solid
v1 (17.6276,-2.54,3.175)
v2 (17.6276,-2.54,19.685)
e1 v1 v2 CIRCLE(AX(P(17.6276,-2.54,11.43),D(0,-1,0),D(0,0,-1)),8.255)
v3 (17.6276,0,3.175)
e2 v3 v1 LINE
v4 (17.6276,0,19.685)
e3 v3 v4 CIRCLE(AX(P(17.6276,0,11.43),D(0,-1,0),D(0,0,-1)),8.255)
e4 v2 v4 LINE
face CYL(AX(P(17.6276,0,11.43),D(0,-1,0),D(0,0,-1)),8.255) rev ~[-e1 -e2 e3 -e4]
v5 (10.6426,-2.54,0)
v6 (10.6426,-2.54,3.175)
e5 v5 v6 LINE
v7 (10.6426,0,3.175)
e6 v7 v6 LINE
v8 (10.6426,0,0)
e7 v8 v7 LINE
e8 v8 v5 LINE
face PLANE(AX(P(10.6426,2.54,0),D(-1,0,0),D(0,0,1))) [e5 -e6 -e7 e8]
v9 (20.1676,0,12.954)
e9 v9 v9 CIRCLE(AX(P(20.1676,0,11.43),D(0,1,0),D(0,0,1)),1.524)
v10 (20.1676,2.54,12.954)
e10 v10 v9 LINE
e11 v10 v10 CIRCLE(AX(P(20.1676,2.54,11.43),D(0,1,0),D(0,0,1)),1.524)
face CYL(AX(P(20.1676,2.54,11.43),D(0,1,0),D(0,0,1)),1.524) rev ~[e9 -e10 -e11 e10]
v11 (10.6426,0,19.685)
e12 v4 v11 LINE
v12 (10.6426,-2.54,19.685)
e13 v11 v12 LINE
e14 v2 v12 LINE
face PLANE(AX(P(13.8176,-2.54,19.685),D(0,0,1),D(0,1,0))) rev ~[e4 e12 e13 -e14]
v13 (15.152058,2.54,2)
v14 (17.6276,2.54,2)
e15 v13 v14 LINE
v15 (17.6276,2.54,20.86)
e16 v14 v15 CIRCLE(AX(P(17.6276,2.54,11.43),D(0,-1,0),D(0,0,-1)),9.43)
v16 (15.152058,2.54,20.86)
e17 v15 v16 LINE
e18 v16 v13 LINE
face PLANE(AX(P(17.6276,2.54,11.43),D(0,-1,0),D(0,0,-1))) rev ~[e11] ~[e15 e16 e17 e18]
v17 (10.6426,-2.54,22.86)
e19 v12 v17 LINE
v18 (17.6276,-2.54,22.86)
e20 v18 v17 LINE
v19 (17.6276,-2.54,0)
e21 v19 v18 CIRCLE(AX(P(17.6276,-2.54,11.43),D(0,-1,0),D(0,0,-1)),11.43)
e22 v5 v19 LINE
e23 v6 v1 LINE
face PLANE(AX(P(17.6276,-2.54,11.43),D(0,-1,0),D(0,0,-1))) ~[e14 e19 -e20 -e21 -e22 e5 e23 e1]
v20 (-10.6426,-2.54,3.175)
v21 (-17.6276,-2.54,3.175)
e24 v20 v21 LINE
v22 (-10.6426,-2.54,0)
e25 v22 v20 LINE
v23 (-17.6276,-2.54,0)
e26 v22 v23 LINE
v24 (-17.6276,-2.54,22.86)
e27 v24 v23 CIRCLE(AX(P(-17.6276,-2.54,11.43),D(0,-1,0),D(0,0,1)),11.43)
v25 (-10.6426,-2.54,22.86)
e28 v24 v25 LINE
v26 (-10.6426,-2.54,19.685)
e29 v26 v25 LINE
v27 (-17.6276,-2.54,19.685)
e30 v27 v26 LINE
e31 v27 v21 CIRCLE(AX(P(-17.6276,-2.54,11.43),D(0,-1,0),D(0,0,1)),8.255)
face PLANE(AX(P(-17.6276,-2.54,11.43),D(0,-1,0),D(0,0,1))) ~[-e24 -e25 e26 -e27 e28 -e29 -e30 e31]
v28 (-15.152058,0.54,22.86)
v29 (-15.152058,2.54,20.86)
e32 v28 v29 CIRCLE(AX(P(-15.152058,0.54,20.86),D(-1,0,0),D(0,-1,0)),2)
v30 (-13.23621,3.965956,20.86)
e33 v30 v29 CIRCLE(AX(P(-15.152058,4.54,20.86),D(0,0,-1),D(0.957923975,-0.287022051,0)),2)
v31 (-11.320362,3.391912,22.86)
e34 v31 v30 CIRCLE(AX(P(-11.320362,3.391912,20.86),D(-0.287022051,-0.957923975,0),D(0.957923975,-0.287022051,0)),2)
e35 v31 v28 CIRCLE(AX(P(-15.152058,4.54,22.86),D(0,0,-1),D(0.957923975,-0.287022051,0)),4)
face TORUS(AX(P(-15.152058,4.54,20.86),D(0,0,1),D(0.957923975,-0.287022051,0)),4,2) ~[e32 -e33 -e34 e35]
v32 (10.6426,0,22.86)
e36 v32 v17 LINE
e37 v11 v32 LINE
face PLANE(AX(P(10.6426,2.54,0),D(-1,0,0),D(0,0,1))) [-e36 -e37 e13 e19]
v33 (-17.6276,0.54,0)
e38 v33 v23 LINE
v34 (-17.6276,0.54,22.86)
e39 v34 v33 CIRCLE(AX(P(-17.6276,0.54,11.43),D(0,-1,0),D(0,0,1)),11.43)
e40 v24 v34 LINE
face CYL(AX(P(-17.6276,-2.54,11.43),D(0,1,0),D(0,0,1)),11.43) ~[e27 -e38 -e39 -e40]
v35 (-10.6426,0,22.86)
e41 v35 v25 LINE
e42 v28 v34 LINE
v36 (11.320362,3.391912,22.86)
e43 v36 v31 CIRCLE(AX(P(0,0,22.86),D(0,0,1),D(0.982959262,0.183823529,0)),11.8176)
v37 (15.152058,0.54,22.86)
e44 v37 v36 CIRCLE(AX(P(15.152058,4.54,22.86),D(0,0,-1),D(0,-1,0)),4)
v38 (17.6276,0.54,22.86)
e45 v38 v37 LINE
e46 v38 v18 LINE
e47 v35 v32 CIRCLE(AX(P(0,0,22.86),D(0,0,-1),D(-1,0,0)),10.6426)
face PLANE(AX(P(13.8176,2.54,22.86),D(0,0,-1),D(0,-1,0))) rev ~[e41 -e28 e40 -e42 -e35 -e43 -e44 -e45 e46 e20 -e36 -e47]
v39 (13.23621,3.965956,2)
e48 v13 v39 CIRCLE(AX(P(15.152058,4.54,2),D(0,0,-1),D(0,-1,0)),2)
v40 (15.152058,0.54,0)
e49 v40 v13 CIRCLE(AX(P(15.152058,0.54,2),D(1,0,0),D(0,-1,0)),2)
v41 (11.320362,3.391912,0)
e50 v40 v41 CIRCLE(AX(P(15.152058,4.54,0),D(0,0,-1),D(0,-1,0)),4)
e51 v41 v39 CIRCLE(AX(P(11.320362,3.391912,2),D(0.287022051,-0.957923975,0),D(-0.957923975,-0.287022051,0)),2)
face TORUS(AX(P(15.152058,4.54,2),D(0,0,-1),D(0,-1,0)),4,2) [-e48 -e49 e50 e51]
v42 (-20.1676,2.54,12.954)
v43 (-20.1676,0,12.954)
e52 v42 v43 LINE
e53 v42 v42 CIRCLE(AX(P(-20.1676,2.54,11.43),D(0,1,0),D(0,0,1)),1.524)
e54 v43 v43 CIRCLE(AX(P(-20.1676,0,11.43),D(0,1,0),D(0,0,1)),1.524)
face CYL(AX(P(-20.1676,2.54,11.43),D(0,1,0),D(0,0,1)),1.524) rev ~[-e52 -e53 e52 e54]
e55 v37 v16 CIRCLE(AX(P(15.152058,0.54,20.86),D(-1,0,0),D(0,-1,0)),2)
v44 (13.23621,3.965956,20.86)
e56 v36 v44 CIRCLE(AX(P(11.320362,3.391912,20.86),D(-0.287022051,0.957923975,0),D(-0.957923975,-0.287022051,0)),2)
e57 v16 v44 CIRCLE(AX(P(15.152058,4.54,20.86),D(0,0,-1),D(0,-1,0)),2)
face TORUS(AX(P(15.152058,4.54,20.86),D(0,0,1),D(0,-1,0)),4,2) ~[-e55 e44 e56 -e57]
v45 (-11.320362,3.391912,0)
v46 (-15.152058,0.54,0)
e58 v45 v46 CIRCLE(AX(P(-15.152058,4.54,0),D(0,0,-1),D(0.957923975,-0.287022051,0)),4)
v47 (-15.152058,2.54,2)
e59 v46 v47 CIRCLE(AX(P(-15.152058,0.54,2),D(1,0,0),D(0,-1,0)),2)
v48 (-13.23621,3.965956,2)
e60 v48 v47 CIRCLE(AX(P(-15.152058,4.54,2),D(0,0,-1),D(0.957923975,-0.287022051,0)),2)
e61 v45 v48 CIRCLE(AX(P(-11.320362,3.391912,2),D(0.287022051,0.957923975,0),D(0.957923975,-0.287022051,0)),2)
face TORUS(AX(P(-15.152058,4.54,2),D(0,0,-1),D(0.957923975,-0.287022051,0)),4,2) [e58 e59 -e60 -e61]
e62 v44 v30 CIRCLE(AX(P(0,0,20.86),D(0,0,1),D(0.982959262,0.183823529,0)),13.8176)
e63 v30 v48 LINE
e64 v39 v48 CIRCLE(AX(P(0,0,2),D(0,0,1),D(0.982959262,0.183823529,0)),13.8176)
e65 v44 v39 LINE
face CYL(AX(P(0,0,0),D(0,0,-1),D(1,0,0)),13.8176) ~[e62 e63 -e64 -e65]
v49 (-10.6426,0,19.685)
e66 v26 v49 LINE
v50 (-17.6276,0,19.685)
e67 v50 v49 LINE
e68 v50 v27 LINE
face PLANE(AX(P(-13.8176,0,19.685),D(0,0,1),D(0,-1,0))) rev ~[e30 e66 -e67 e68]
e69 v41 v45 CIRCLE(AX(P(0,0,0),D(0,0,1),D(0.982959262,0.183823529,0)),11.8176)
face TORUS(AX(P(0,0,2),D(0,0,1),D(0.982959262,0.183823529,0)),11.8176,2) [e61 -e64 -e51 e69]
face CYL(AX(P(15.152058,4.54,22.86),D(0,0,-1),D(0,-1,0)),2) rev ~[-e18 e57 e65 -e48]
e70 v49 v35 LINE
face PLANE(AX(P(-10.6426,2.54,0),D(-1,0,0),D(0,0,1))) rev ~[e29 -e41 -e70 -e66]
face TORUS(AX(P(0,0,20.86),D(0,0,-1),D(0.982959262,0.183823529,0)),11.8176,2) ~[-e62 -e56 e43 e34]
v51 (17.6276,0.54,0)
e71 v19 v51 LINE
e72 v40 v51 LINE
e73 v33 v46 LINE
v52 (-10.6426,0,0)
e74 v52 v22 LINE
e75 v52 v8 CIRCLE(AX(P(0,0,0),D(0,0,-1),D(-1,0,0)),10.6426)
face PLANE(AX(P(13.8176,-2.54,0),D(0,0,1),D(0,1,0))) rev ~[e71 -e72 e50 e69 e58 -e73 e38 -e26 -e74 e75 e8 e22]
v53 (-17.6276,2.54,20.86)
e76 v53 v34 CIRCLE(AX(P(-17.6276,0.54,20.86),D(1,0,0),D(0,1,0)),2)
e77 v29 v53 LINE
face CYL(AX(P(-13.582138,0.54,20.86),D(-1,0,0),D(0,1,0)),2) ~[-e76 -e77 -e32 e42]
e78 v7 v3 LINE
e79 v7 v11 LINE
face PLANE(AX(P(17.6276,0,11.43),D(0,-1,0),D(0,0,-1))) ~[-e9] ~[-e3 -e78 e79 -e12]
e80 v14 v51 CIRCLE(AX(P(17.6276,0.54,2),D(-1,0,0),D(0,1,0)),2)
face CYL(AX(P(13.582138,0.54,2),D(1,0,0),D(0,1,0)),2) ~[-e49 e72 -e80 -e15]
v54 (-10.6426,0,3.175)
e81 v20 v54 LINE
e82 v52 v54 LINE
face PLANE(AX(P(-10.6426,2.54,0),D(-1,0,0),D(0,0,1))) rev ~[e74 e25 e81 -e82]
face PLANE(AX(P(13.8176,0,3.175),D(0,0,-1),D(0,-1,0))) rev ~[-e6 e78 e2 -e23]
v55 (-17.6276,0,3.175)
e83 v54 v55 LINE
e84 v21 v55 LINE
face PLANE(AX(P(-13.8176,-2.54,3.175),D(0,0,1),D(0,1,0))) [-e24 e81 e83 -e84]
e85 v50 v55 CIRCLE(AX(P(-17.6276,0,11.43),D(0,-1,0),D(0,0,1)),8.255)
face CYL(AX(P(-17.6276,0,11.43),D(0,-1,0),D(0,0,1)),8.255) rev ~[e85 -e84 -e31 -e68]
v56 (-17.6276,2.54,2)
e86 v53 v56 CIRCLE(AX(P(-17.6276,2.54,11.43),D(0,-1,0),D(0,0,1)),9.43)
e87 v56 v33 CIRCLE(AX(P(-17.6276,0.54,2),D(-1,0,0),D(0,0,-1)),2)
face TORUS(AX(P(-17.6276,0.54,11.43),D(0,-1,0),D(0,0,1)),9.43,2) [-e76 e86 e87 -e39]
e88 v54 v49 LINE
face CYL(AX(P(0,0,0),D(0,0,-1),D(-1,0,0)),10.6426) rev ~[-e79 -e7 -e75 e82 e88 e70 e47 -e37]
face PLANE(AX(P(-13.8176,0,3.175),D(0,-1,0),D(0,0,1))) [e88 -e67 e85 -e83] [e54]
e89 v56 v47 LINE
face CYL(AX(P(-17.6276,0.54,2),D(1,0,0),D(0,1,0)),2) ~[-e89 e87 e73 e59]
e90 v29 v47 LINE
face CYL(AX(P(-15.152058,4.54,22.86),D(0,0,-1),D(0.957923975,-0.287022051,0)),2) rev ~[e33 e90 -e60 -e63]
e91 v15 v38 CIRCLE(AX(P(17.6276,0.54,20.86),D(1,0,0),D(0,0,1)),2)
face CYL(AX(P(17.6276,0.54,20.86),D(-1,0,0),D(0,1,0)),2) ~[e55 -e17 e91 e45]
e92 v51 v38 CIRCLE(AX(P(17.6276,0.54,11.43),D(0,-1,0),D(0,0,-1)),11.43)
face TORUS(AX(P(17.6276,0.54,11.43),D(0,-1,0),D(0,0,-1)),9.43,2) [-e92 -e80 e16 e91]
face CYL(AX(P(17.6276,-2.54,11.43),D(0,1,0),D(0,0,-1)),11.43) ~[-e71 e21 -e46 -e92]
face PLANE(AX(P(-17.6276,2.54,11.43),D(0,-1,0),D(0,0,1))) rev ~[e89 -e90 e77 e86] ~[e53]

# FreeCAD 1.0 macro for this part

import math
import FreeCAD as App
import Part
import Sketcher
from FreeCAD import Vector
Q = App.Units.Quantity


def edges_at(feature, points):
    """Names of the edges that pass closest to the given points."""
    edges = feature.Shape.Edges
    near = lambda p: min(range(len(edges)), key=lambda i: edges[i].distToShape(Part.Vertex(*p))[0])
    return sorted({f"Edge{near(p) + 1}" for p in points})


def add_polygon(sketch, points):
    """Adds a closed chain of lines whose ends are joined by coincident constraints."""
    first, n = sketch.GeometryCount, len(points)
    for a, b in zip(points, points[1:] + points[:1]):
        sketch.addGeometry(Part.LineSegment(App.Vector(*a, 0), App.Vector(*b, 0)), False)
    for i in range(n):
        sketch.addConstraint(Sketcher.Constraint("Coincident", first + i, 2, first + (i + 1) % n, 1))

doc = App.newDocument("Part")
params = doc.addObject("Spreadsheet::Sheet", "Params")
for row, (alias, value) in enumerate([
    ("sketch1_radius", "0.419 in"),
    ("sketch1_radius2", "0.544 in"),
    ("pad1_length", "0.9 in"),
    ("sketch2_height", "0.9 in"),
    ("sketch2_width", "0.125 in"),
    ("pad2_length", "0.1 in"),
    ("pad2_length2", "0.1 in"),
    ("sketch3_height", "0.9 in"),
    ("sketch3_width", "0.125 in"),
    ("pad3_length", "0.1 in"),
    ("pad3_length2", "0.1 in"),
    ("sketch4_width", "0.2 in"),
    ("sketch4_height", "0.9 in"),
    ("sketch4_height2", "0.65 in"),
    ("pad4_length", "0.15 in"),
    ("sketch5_width", "0.1 in"),
    ("sketch5_height", "0.9 in"),
    ("sketch5_height2", "0.65 in"),
    ("pad5_length", "0.15 in"),
    ("sketch6_width", "0.1 in"),
    ("sketch6_height", "0.45 in"),
    ("sketch6_height2", "0.325 in"),
    ("revolution_angle", "180 deg"),
    ("sketch7_width", "0.1 in"),
    ("sketch7_height", "0.45 in"),
    ("sketch7_height2", "0.325 in"),
    ("revolution2_angle", "180 deg"),
    ("sketch8_width", "0.1 in"),
    ("sketch8_height", "0.65 in"),
    ("pocket1_length", "0.15 in"),
    ("sketch9_width", "0.1 in"),
    ("sketch9_height", "0.65 in"),
    ("pocket2_length", "0.15 in"),
    ("sketch10_diameter", "0.12 in"),
    ("pocket3_length", "0.15 in"),
    ("fillet_radius", "2 mm"),
], start=1):
    params.set(f"A{row}", alias)
    params.set(f"B{row}", "=" + value)
    params.setAlias(f"B{row}", alias)

body = doc.addObject("PartDesign::Body", "Body")

# Sketch on XY plane
sketch1 = body.newObject("Sketcher::SketchObject", "Sketch")
sketch1.AttachmentSupport = (doc.getObject("XY_Plane"), [""])
sketch1.MapMode = "FlatFace"
sketch1.addGeometry([
    Part.LineSegment(Vector(-13.8176, 0, 0), Vector(-10.6426, 0, 0)),
    Part.ArcOfCircle(Part.Circle(Vector(0, 0, 0), Vector(0, 0, 1), 10.6426), math.radians(0), math.radians(180)),
    Part.LineSegment(Vector(10.6426, 0, 0), Vector(13.8176, 0, 0)),
    Part.ArcOfCircle(Part.Circle(Vector(0, 0, 0), Vector(0, 0, 1), 13.8176), math.radians(0), math.radians(180)),
], False)
sketch1.addConstraint([
    Sketcher.Constraint("Coincident", 0, 2, 1, 2),
    Sketcher.Constraint("Coincident", 1, 1, 2, 1),
    Sketcher.Constraint("Coincident", 2, 2, 3, 1),
    Sketcher.Constraint("Coincident", 3, 2, 0, 1),
    Sketcher.Constraint("Horizontal", 0),
    Sketcher.Constraint("Horizontal", 2),
    Sketcher.Constraint("Coincident", 1, 3, -1, 1),
    Sketcher.Constraint("Coincident", 3, 3, -1, 1),
    Sketcher.Constraint("PointOnObject", 0, 2, -1),
    Sketcher.Constraint("PointOnObject", 1, 1, -1),
    Sketcher.Constraint("Radius", 1, Q("0.419 in")),
    Sketcher.Constraint("Radius", 3, Q("0.544 in")),
])
sketch1.setExpression("Constraints[10]", "Params.sketch1_radius")
sketch1.setExpression("Constraints[11]", "Params.sketch1_radius2")
pad1 = body.newObject("PartDesign::Pad", "Pad")
pad1.Profile = sketch1
pad1.setExpression("Length", "Params.pad1_length")

# Sketch on XZ plane
sketch2 = body.newObject("Sketcher::SketchObject", "Sketch001")
sketch2.AttachmentSupport = (doc.getObject("XZ_Plane"), [""])
sketch2.MapMode = "FlatFace"
add_polygon(sketch2, [(-13.8176, 22.86), (-13.8176, 0), (-10.6426, 0), (-10.6426, 22.86)])  # lines 0-3
sketch2.addConstraint([
    Sketcher.Constraint("Vertical", 0),
    Sketcher.Constraint("Horizontal", 1),
    Sketcher.Constraint("Vertical", 2),
    Sketcher.Constraint("Horizontal", 3),
    Sketcher.Constraint("PointOnObject", 0, 2, -1),
    Sketcher.Constraint("DistanceY", 0, 2, 0, 1, Q("0.9 in")),
    Sketcher.Constraint("DistanceX", 1, 1, 1, 2, Q("0.125 in")),
    Sketcher.Constraint("DistanceX", 0, 2, -1, 1, Q("0.544 in")),
])
sketch2.setExpression("Constraints[9]", "Params.sketch2_height")
sketch2.setExpression("Constraints[10]", "Params.sketch2_width")
pad2 = body.newObject("PartDesign::Pad", "Pad001")
pad2.Profile = sketch2
pad2.Type = "TwoLengths"
pad2.setExpression("Length", "Params.pad2_length")
pad2.setExpression("Length2", "Params.pad2_length2")

# Sketch on XZ plane
sketch3 = body.newObject("Sketcher::SketchObject", "Sketch002")
sketch3.AttachmentSupport = (doc.getObject("XZ_Plane"), [""])
sketch3.MapMode = "FlatFace"
add_polygon(sketch3, [(10.6426, 22.86), (10.6426, 0), (13.8176, 0), (13.8176, 22.86)])  # lines 0-3
sketch3.addConstraint([
    Sketcher.Constraint("Vertical", 0),
    Sketcher.Constraint("Horizontal", 1),
    Sketcher.Constraint("Vertical", 2),
    Sketcher.Constraint("Horizontal", 3),
    Sketcher.Constraint("PointOnObject", 0, 2, -1),
    Sketcher.Constraint("DistanceY", 0, 2, 0, 1, Q("0.9 in")),
    Sketcher.Constraint("DistanceX", 1, 1, 1, 2, Q("0.125 in")),
    Sketcher.Constraint("DistanceX", -1, 1, 0, 2, Q("0.419 in")),
])
sketch3.setExpression("Constraints[9]", "Params.sketch3_height")
sketch3.setExpression("Constraints[10]", "Params.sketch3_width")
pad3 = body.newObject("PartDesign::Pad", "Pad002")
pad3.Profile = sketch3
pad3.Type = "TwoLengths"
pad3.setExpression("Length", "Params.pad3_length")
pad3.setExpression("Length2", "Params.pad3_length2")

# Sketch on YZ plane
sketch4 = body.newObject("Sketcher::SketchObject", "Sketch003")
sketch4.AttachmentSupport = (doc.getObject("YZ_Plane"), [""])
sketch4.MapMode = "FlatFace"
sketch4.AttachmentOffset = App.Placement(Vector(0, 0, -0.544 * 25.4), App.Rotation())
add_polygon(sketch4, [(2.54, 22.86), (2.54, 0), (-2.54, 0), (-2.54, 3.175), (0, 3.175), (0, 19.685), (-2.54, 19.685), (-2.54, 22.86)])  # lines 0-7
sketch4.addConstraint([
    Sketcher.Constraint("Vertical", 0),
    Sketcher.Constraint("Horizontal", 1),
    Sketcher.Constraint("Vertical", 2),
    Sketcher.Constraint("Horizontal", 3),
    Sketcher.Constraint("Vertical", 4),
    Sketcher.Constraint("Horizontal", 5),
    Sketcher.Constraint("Vertical", 6),
    Sketcher.Constraint("Horizontal", 7),
    Sketcher.Constraint("Symmetric", 0, 2, 1, 2, -1, 1),
    Sketcher.Constraint("PointOnObject", 3, 2, -2),
    Sketcher.Constraint("Vertical", 2, 2, 5, 2),
    Sketcher.Constraint("Equal", 2, 6),
    Sketcher.Constraint("DistanceX", 1, 2, 1, 1, Q("0.2 in")),
    Sketcher.Constraint("DistanceY", 0, 2, 0, 1, Q("0.9 in")),
    Sketcher.Constraint("DistanceY", 4, 1, 4, 2, Q("0.65 in")),
])
sketch4.setExpression("Constraints[20]", "Params.sketch4_width")
sketch4.setExpression("Constraints[21]", "Params.sketch4_height")
sketch4.setExpression("Constraints[22]", "Params.sketch4_height2")
pad4 = body.newObject("PartDesign::Pad", "Pad003")
pad4.Profile = sketch4
pad4.setExpression("Length", "Params.pad4_length")
pad4.Reversed = True

# Sketch on YZ plane
sketch5 = body.newObject("Sketcher::SketchObject", "Sketch004")
sketch5.AttachmentSupport = (doc.getObject("YZ_Plane"), [""])
sketch5.MapMode = "FlatFace"
sketch5.AttachmentOffset = App.Placement(Vector(0, 0, 0.544 * 25.4), App.Rotation())
add_polygon(sketch5, [(-2.54, 19.685), (0, 19.685), (0, 3.175), (-2.54, 3.175), (-2.54, 0), (2.54, 0), (2.54, 22.86), (-2.54, 22.86)])  # lines 0-7
sketch5.addConstraint([
    Sketcher.Constraint("Horizontal", 0),
    Sketcher.Constraint("Vertical", 1),
    Sketcher.Constraint("Horizontal", 2),
    Sketcher.Constraint("Vertical", 3),
    Sketcher.Constraint("Horizontal", 4),
    Sketcher.Constraint("Vertical", 5),
    Sketcher.Constraint("Horizontal", 6),
    Sketcher.Constraint("Vertical", 7),
    Sketcher.Constraint("Symmetric", 3, 2, 4, 2, -1, 1),
    Sketcher.Constraint("PointOnObject", 0, 2, -2),
    Sketcher.Constraint("Vertical", 3, 2, 6, 2),
    Sketcher.Constraint("Equal", 3, 7),
    Sketcher.Constraint("DistanceX", 0, 1, 0, 2, Q("0.1 in")),
    Sketcher.Constraint("DistanceY", 5, 1, 5, 2, Q("0.9 in")),
    Sketcher.Constraint("DistanceY", 1, 2, 1, 1, Q("0.65 in")),
])
sketch5.setExpression("Constraints[20]", "Params.sketch5_width")
sketch5.setExpression("Constraints[21]", "Params.sketch5_height")
sketch5.setExpression("Constraints[22]", "Params.sketch5_height2")
pad5 = body.newObject("PartDesign::Pad", "Pad004")
pad5.Profile = sketch5
pad5.setExpression("Length", "Params.pad5_length")

# Sketch on YZ plane
sketch6 = body.newObject("Sketcher::SketchObject", "Sketch005")
sketch6.AttachmentSupport = (doc.getObject("YZ_Plane"), [""])
sketch6.MapMode = "FlatFace"
sketch6.AttachmentOffset = App.Placement(Vector(0, 0, -0.694 * 25.4), App.Rotation())
add_polygon(sketch6, [(2.54, 11.43), (0, 11.43), (0, 19.685), (-2.54, 19.685), (-2.54, 22.86), (2.54, 22.86)])  # lines 0-5
sketch6.addGeometry(Part.LineSegment(Vector(2.54, 11.43, 0), Vector(-2.54, 11.43, 0)), True)  # axis
sketch6.addConstraint([
    Sketcher.Constraint("Horizontal", 0),
    Sketcher.Constraint("Vertical", 1),
    Sketcher.Constraint("Horizontal", 2),
    Sketcher.Constraint("Vertical", 3),
    Sketcher.Constraint("Horizontal", 4),
    Sketcher.Constraint("Vertical", 5),
    Sketcher.Constraint("Horizontal", 6),
    Sketcher.Constraint("Coincident", 6, 1, 5, 2),
    Sketcher.Constraint("PointOnObject", 0, 2, -2),
    Sketcher.Constraint("Vertical", 3, 2, 6, 2),
    Sketcher.Constraint("Equal", 0, 2),
    Sketcher.Constraint("DistanceX", 0, 2, 0, 1, Q("0.1 in")),
    Sketcher.Constraint("DistanceY", 5, 2, 5, 1, Q("0.45 in")),
    Sketcher.Constraint("DistanceY", -1, 1, 3, 2, Q("0.9 in")),
    Sketcher.Constraint("DistanceY", 1, 1, 1, 2, Q("0.325 in")),
])
sketch6.setExpression("Constraints[17]", "Params.sketch6_width")
sketch6.setExpression("Constraints[18]", "Params.sketch6_height")
sketch6.setExpression("Constraints[20]", "Params.sketch6_height2")
revolution = body.newObject("PartDesign::Revolution", "Revolution")
revolution.Profile = sketch6
revolution.ReferenceAxis = (sketch6, ["Axis0"])
revolution.setExpression("Angle", "Params.revolution_angle")

# Sketch on YZ plane
sketch7 = body.newObject("Sketcher::SketchObject", "Sketch006")
sketch7.AttachmentSupport = (doc.getObject("YZ_Plane"), [""])
sketch7.MapMode = "FlatFace"
sketch7.AttachmentOffset = App.Placement(Vector(0, 0, 0.694 * 25.4), App.Rotation())
add_polygon(sketch7, [(2.54, 11.43), (0, 11.43), (0, 3.175), (-2.54, 3.175), (-2.54, 0), (2.54, 0)])  # lines 0-5
sketch7.addGeometry(Part.LineSegment(Vector(2.54, 11.43, 0), Vector(-2.54, 11.43, 0)), True)  # axis
sketch7.addConstraint([
    Sketcher.Constraint("Horizontal", 0),
    Sketcher.Constraint("Vertical", 1),
    Sketcher.Constraint("Horizontal", 2),
    Sketcher.Constraint("Vertical", 3),
    Sketcher.Constraint("Horizontal", 4),
    Sketcher.Constraint("Vertical", 5),
    Sketcher.Constraint("Horizontal", 6),
    Sketcher.Constraint("Coincident", 6, 1, 5, 2),
    Sketcher.Constraint("Symmetric", 3, 2, 4, 2, -1, 1),
    Sketcher.Constraint("PointOnObject", 0, 2, -2),
    Sketcher.Constraint("Vertical", 3, 2, 6, 2),
    Sketcher.Constraint("DistanceX", 0, 2, 0, 1, Q("0.1 in")),
    Sketcher.Constraint("DistanceY", 5, 1, 5, 2, Q("0.45 in")),
    Sketcher.Constraint("DistanceY", 1, 2, 1, 1, Q("0.325 in")),
])
sketch7.setExpression("Constraints[17]", "Params.sketch7_width")
sketch7.setExpression("Constraints[18]", "Params.sketch7_height")
sketch7.setExpression("Constraints[19]", "Params.sketch7_height2")
revolution2 = body.newObject("PartDesign::Revolution", "Revolution001")
revolution2.Profile = sketch7
revolution2.ReferenceAxis = (sketch7, ["Axis0"])
revolution2.setExpression("Angle", "Params.revolution2_angle")

# Sketch on YZ plane
sketch8 = body.newObject("Sketcher::SketchObject", "Sketch007")
sketch8.AttachmentSupport = (doc.getObject("YZ_Plane"), [""])
sketch8.MapMode = "FlatFace"
sketch8.AttachmentOffset = App.Placement(Vector(0, 0, -0.544 * 25.4), App.Rotation())
add_polygon(sketch8, [(0, 3.175), (-2.54, 3.175), (-2.54, 19.685), (0, 19.685)])  # lines 0-3
sketch8.addConstraint([
    Sketcher.Constraint("Horizontal", 0),
    Sketcher.Constraint("Vertical", 1),
    Sketcher.Constraint("Horizontal", 2),
    Sketcher.Constraint("Vertical", 3),
    Sketcher.Constraint("PointOnObject", 2, 2, -2),
    Sketcher.Constraint("DistanceX", 0, 2, 0, 1, Q("0.1 in")),
    Sketcher.Constraint("DistanceY", 1, 1, 1, 2, Q("0.65 in")),
    Sketcher.Constraint("DistanceY", -1, 1, 0, 2, Q("0.125 in")),
])
sketch8.setExpression("Constraints[9]", "Params.sketch8_width")
sketch8.setExpression("Constraints[10]", "Params.sketch8_height")
pocket1 = body.newObject("PartDesign::Pocket", "Pocket")
pocket1.Profile = sketch8
pocket1.setExpression("Length", "Params.pocket1_length")
pocket1.Reversed = True

# Sketch on YZ plane
sketch9 = body.newObject("Sketcher::SketchObject", "Sketch008")
sketch9.AttachmentSupport = (doc.getObject("YZ_Plane"), [""])
sketch9.MapMode = "FlatFace"
sketch9.AttachmentOffset = App.Placement(Vector(0, 0, 0.544 * 25.4), App.Rotation())
add_polygon(sketch9, [(0, 19.685), (-2.54, 19.685), (-2.54, 3.175), (0, 3.175)])  # lines 0-3
sketch9.addConstraint([
    Sketcher.Constraint("Horizontal", 0),
    Sketcher.Constraint("Vertical", 1),
    Sketcher.Constraint("Horizontal", 2),
    Sketcher.Constraint("Vertical", 3),
    Sketcher.Constraint("PointOnObject", 2, 2, -2),
    Sketcher.Constraint("DistanceX", 0, 2, 0, 1, Q("0.1 in")),
    Sketcher.Constraint("DistanceY", 1, 2, 1, 1, Q("0.65 in")),
    Sketcher.Constraint("DistanceY", -1, 1, 0, 2, Q("0.775 in")),
])
sketch9.setExpression("Constraints[9]", "Params.sketch9_width")
sketch9.setExpression("Constraints[10]", "Params.sketch9_height")
pocket2 = body.newObject("PartDesign::Pocket", "Pocket001")
pocket2.Profile = sketch9
pocket2.setExpression("Length", "Params.pocket2_length")

# Sketch on XZ plane
sketch10 = body.newObject("Sketcher::SketchObject", "Sketch009")
sketch10.AttachmentSupport = (doc.getObject("XZ_Plane"), [""])
sketch10.MapMode = "FlatFace"
sketch10.AttachmentOffset = App.Placement(Vector(0, 0, -0.1 * 25.4), App.Rotation())
sketch10.addGeometry([
    Part.Circle(Vector(-20.1676, 11.43, 0), Vector(0, 0, 1), 1.524),
    Part.Circle(Vector(20.1676, 11.43, 0), Vector(0, 0, 1), 1.524),
], False)
sketch10.addConstraint([
    Sketcher.Constraint("Equal", 0, 1),
    Sketcher.Constraint("Symmetric", 0, 3, 1, 3, -2),
    Sketcher.Constraint("Diameter", 0, Q("0.12 in")),
    Sketcher.Constraint("DistanceY", -1, 1, 0, 3, Q("0.45 in")),
    Sketcher.Constraint("DistanceX", 0, 3, -1, 1, Q("0.794 in")),
])
sketch10.setExpression("Constraints[2]", "Params.sketch10_diameter")
pocket3 = body.newObject("PartDesign::Pocket", "Pocket002")
pocket3.Profile = sketch10
pocket3.setExpression("Length", "Params.pocket3_length")
pocket3.Reversed = True
doc.recompute()

fillet = body.newObject("PartDesign::Fillet", "Fillet")
fillet.Base = (pocket3, edges_at(pocket3, [
    (-29.058, 2.54, 11.43),
    (29.058, 2.54, 11.43),
    (-15.605, 2.54, 0),
    (-15.605, 2.54, 22.86),
    (-13.582, 2.54, 11.43),
    (0, 13.818, 0),
    (0, 13.818, 22.86),
    (15.605, 2.54, 0),
    (15.605, 2.54, 22.86),
    (13.582, 2.54, 11.43),
]))
fillet.setExpression("Radius", "Params.fillet_radius")

doc.recompute()
